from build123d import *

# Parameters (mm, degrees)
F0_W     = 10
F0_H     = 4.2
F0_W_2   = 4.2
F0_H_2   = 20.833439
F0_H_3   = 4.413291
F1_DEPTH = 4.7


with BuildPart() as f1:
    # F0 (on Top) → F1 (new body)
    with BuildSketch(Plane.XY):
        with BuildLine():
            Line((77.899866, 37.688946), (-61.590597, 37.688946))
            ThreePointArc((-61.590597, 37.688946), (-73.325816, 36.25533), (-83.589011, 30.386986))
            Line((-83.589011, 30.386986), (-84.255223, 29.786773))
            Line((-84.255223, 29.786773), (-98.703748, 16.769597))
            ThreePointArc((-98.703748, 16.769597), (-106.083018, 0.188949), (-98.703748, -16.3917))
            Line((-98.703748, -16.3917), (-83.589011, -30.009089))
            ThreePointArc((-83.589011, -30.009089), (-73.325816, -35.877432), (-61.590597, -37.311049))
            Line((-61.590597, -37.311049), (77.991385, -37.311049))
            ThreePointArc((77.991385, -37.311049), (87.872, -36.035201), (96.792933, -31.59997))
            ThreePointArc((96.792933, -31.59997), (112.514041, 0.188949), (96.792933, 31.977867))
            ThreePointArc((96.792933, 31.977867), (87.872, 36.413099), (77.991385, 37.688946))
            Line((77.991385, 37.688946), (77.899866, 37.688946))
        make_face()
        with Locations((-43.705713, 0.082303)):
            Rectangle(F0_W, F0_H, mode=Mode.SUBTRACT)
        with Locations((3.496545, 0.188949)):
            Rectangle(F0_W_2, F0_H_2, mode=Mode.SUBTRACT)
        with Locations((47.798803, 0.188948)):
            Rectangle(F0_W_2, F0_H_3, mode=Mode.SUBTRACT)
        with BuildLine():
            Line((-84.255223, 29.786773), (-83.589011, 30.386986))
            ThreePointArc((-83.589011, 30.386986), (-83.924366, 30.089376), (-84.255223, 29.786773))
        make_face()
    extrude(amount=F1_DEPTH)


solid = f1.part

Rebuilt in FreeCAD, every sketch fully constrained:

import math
import FreeCAD as App
import Part
import Sketcher

V = App.Vector
Q = App.Units.Quantity

doc = App.newDocument("Part")
body = doc.addObject("PartDesign::Body", "Body")

sketch1 = doc.addObject("Sketcher::SketchObject", "Sketch")
body.addObject(sketch1)
sketch1.AttachmentSupport = (doc.XY_Plane, [""])
sketch1.MapMode = "FlatFace"
sketch1.addGeometry([
    Part.LineSegment(V(78, 37.7, 0), V(-61.6, 37.7, 0)),
    Part.ArcOfCircle(Part.Circle(V(-63.9, 7.9, 0), V(0, 0, 1), 29.9), math.radians(86), math.radians(131)),
    Part.ArcOfCircle(Part.Circle(V(-63.9, 7.9, 0), V(0, 0, 1), 29.9), math.radians(131.16), math.radians(132.88)),
    Part.LineSegment(V(-84.3, 29.8, 0), V(-98.7, 16.8, 0)),
    Part.ArcOfCircle(Part.Circle(V(-83.8, 0.2, 0), V(0, 0, 1), 22.3), math.radians(132), math.radians(228)),
    Part.LineSegment(V(-98.7, -16.4, 0), V(-83.6, -30, 0)),
    Part.ArcOfCircle(Part.Circle(V(-63.9, -7.5, 0), V(0, 0, 1), 29.9), math.radians(-131), math.radians(-86)),
    Part.LineSegment(V(-61.6, -37.3, 0), V(78, -37.3, 0)),
    Part.ArcOfCircle(Part.Circle(V(79.1, -7.3, 0), V(0, 0, 1), 30.1), math.radians(-92), math.radians(-54)),
    Part.ArcOfCircle(Part.Circle(V(72.5, 0.2, 0), V(0, 0, 1), 40), math.radians(-53), math.radians(53)),
    Part.ArcOfCircle(Part.Circle(V(79.1, 7.7, 0), V(0, 0, 1), 30.1), math.radians(54), math.radians(92)),
    Part.LineSegment(V(-38.7, -2, 0), V(-48.7, -2, 0)),
    Part.LineSegment(V(-48.7, -2, 0), V(-48.7, 2.2, 0)),
    Part.LineSegment(V(-48.7, 2.2, 0), V(-38.7, 2.2, 0)),
    Part.LineSegment(V(-38.7, 2.2, 0), V(-38.7, -2, 0)),
    Part.LineSegment(V(49.9, -2, 0), V(45.7, -2, 0)),
    Part.LineSegment(V(45.7, -2, 0), V(45.7, 2.4, 0)),
    Part.LineSegment(V(45.7, 2.4, 0), V(49.9, 2.4, 0)),
    Part.LineSegment(V(49.9, 2.4, 0), V(49.9, -2, 0)),
    Part.LineSegment(V(5.6, -10.2, 0), V(1.4, -10.2, 0)),
    Part.LineSegment(V(1.4, -10.2, 0), V(1.4, 10.6, 0)),
    Part.LineSegment(V(1.4, 10.6, 0), V(5.6, 10.6, 0)),
    Part.LineSegment(V(5.6, 10.6, 0), V(5.6, -10.2, 0)),
], False)
sketch1.addConstraint([
    Sketcher.Constraint("Coincident", 0, 2, 1, 1),
    Sketcher.Constraint("Tangent", 1, 2, 2, 1),
    Sketcher.Constraint("Coincident", 2, 2, 3, 1),
    Sketcher.Constraint("Tangent", 3, 2, 4, 1),
    Sketcher.Constraint("Tangent", 4, 2, 5, 1),
    Sketcher.Constraint("Coincident", 5, 2, 6, 1),
    Sketcher.Constraint("Coincident", 6, 2, 7, 1),
    Sketcher.Constraint("Coincident", 7, 2, 8, 1),
    Sketcher.Constraint("Coincident", 8, 2, 9, 1),
    Sketcher.Constraint("Coincident", 9, 2, 10, 1),
    Sketcher.Constraint("Coincident", 10, 2, 0, 1),
    Sketcher.Constraint("Coincident", 11, 2, 12, 1),
    Sketcher.Constraint("Coincident", 12, 2, 13, 1),
    Sketcher.Constraint("Coincident", 13, 2, 14, 1),
    Sketcher.Constraint("Coincident", 14, 2, 11, 1),
    Sketcher.Constraint("Coincident", 15, 2, 16, 1),
    Sketcher.Constraint("Coincident", 16, 2, 17, 1),
    Sketcher.Constraint("Coincident", 17, 2, 18, 1),
    Sketcher.Constraint("Coincident", 18, 2, 15, 1),
    Sketcher.Constraint("Coincident", 19, 2, 20, 1),
    Sketcher.Constraint("Coincident", 20, 2, 21, 1),
    Sketcher.Constraint("Coincident", 21, 2, 22, 1),
    Sketcher.Constraint("Coincident", 22, 2, 19, 1),
    Sketcher.Constraint("Horizontal", 0),
    Sketcher.Constraint("Horizontal", 7),
    Sketcher.Constraint("Horizontal", 11),
    Sketcher.Constraint("Vertical", 12),
    Sketcher.Constraint("Horizontal", 13),
    Sketcher.Constraint("Vertical", 14),
    Sketcher.Constraint("Horizontal", 15),
    Sketcher.Constraint("Vertical", 16),
    Sketcher.Constraint("Horizontal", 17),
    Sketcher.Constraint("Vertical", 18),
    Sketcher.Constraint("Horizontal", 19),
    Sketcher.Constraint("Vertical", 20),
    Sketcher.Constraint("Horizontal", 21),
    Sketcher.Constraint("Vertical", 22),
    Sketcher.Constraint("Horizontal", 4, 3, 9, 3),
    Sketcher.Constraint("Horizontal", 14, 2, 15, 2),
    Sketcher.Constraint("Vertical", 3, 2, 4, 2),
    Sketcher.Constraint("Vertical", 1, 2, 5, 2),
    Sketcher.Constraint("Vertical", 0, 2, 6, 2),
    Sketcher.Constraint("Vertical", 8, 2, 9, 2),
    Sketcher.Constraint("Vertical", 7, 2, 10, 2),
    Sketcher.Constraint("Equal", 17, 19),
    Sketcher.Constraint("Equal", 21, 12),
    Sketcher.Constraint("DistanceX", 11, 2, 11, 1, Q("10 mm")),
    Sketcher.Constraint("DistanceX", 15, 2, 15, 1, Q("4.2 mm")),
    Sketcher.Constraint("Radius", 6, Q("29.912501 mm")),
    Sketcher.Constraint("Radius", 1, Q("29.91249 mm")),
    Sketcher.Constraint("Radius", 4, Q("22.317352 mm")),
    Sketcher.Constraint("Radius", 8, Q("30.05956 mm")),
    Sketcher.Constraint("Radius", 2, Q("29.914684 mm")),
    Sketcher.Constraint("Radius", 9, Q("39.999998 mm")),
    Sketcher.Constraint("Radius", 10, Q("30.059544 mm")),
    Sketcher.Constraint("DistanceX", 0, 2, 0, 1, Q("139.581982 mm")),
    Sketcher.Constraint("DistanceY", 16, 1, 16, 2, Q("4.413291 mm")),
    Sketcher.Constraint("DistanceY", 20, 1, 20, 2, Q("20.833439 mm")),
    Sketcher.Constraint("DistanceX", -1, 1, 10, 3, Q("79.1354 mm")),
    Sketcher.Constraint("DistanceY", 4, 2, -1, 1, Q("16.3917 mm")),
    Sketcher.Constraint("Distance", 3, Q("19.447538 mm")),
    Sketcher.Constraint("Distance", 5, Q("20.344251 mm")),
    Sketcher.Constraint("DistanceX", 1, 3, -1, 1, Q("63.902489 mm")),
    Sketcher.Constraint("DistanceY", -1, 1, 1, 3, Q("7.865931 mm")),
    Sketcher.Constraint("DistanceY", -1, 1, 4, 3, Q("0.188948 mm")),
    Sketcher.Constraint("DistanceY", -1, 1, 10, 3, Q("7.65118 mm")),
    Sketcher.Constraint("DistanceY", 6, 2, -1, 1, Q("37.311049 mm")),
    Sketcher.Constraint("DistanceY", 8, 2, -1, 1, Q("31.59997 mm")),
    Sketcher.Constraint("DistanceY", 19, 2, -1, 1, Q("10.227771 mm")),
    Sketcher.Constraint("DistanceX", 2, 3, 11, 2, Q("15.195319 mm")),
    Sketcher.Constraint("DistanceY", 6, 2, 11, 2, Q("35.293352 mm")),
    Sketcher.Constraint("DistanceX", 15, 2, 9, 3, Q("26.81524 mm")),
    Sketcher.Constraint("DistanceX", 14, 2, 19, 2, Q("40.102258 mm")),
])
pad1 = doc.addObject("PartDesign::Pad", "Pad")
body.addObject(pad1)
pad1.Profile = sketch1
pad1.Length = 4.7

doc.recompute()
